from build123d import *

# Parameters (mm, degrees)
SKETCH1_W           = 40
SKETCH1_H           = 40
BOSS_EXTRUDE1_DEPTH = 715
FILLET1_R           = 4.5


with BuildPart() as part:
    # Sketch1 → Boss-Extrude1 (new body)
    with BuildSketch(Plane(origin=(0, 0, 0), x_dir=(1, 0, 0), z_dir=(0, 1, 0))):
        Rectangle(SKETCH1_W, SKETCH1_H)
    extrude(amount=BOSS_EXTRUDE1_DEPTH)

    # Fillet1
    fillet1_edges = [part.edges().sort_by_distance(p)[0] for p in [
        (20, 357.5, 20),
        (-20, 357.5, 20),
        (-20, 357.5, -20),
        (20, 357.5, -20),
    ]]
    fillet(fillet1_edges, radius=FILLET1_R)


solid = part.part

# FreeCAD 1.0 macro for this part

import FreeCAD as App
import Part
import Sketcher

V = App.Vector


def edges_at(feature, points):
    """Names of the edges that pass closest to the given points."""
    edges = feature.Shape.Edges
    near = lambda p: min(range(len(edges)), key=lambda i: edges[i].distToShape(Part.Vertex(*p))[0])
    return sorted({f"Edge{near(p) + 1}" for p in points})


def add_polygon(sketch, points):
    """Adds a closed chain of lines whose ends are joined by coincident constraints."""
    first, n = sketch.GeometryCount, len(points)
    for a, b in zip(points, points[1:] + points[:1]):
        sketch.addGeometry(Part.LineSegment(App.Vector(*a, 0), App.Vector(*b, 0)), False)
    for i in range(n):
        sketch.addConstraint(Sketcher.Constraint("Coincident", first + i, 2, first + (i + 1) % n, 1))

doc = App.newDocument("Part")
body = doc.addObject("PartDesign::Body", "Body")

# Sketch on XZ plane
sketch1 = body.newObject("Sketcher::SketchObject", "Sketch")
sketch1.AttachmentSupport = (doc.getObject("XZ_Plane"), [""])
sketch1.MapMode = "FlatFace"
add_polygon(sketch1, [(-20, -20), (-20, 20), (20, 20), (20, -20)])  # lines 0-3
sketch1.addConstraint([
    Sketcher.Constraint("Vertical", 0),
    Sketcher.Constraint("Horizontal", 1),
    Sketcher.Constraint("Vertical", 2),
    Sketcher.Constraint("Horizontal", 3),
    Sketcher.Constraint("Symmetric", 0, 2, 2, 2, -1, 1),
    Sketcher.Constraint("Equal", 3, 0),
    Sketcher.Constraint("DistanceX", 1, 1, 1, 2, 40.0),
])
pad1 = body.newObject("PartDesign::Pad", "Pad")
pad1.Profile = sketch1
pad1.Length = 715
pad1.Reversed = True
doc.recompute()

fillet = body.newObject("PartDesign::Fillet", "Fillet")
fillet.Base = (pad1, edges_at(pad1, [
    (20, 357.5, 20),
    (-20, 357.5, 20),
    (-20, 357.5, -20),
    (20, 357.5, -20),
]))
fillet.Radius = 4.5

doc.recompute()
